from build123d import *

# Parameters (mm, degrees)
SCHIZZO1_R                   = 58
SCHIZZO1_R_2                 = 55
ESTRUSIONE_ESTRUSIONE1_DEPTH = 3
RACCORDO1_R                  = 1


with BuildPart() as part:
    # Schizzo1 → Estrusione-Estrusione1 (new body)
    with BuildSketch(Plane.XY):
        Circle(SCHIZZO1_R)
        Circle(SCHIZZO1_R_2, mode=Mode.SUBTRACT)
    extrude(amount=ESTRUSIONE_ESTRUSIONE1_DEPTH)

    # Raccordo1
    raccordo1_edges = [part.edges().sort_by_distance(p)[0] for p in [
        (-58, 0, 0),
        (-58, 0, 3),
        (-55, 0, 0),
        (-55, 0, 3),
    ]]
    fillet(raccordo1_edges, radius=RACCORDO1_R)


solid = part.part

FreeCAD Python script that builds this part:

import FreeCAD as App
import Part
import Sketcher

V = App.Vector
Q = App.Units.Quantity


def edges_at(feature, points):
    """Names of the edges that pass closest to the given points."""
    edges = feature.Shape.Edges
    near = lambda p: min(range(len(edges)), key=lambda i: edges[i].distToShape(Part.Vertex(*p))[0])
    return sorted({f"Edge{near(p) + 1}" for p in points})

doc = App.newDocument("Part")
body = doc.addObject("PartDesign::Body", "Body")

# Sketch on XY plane
sketch1 = doc.addObject("Sketcher::SketchObject", "Sketch")
body.addObject(sketch1)
sketch1.AttachmentSupport = (doc.XY_Plane, [""])
sketch1.MapMode = "FlatFace"
sketch1.addGeometry(Part.Circle(V(0, 0, 0), V(0, 0, 1), 58), False)
sketch1.addGeometry(Part.Circle(V(0, 0, 0), V(0, 0, 1), 55), False)
sketch1.addConstraint(Sketcher.Constraint("Coincident", 0, 3, -1, 1))
sketch1.addConstraint(Sketcher.Constraint("Coincident", 1, 3, -1, 1))
sketch1.addConstraint(Sketcher.Constraint("Diameter", 0, Q("116 mm")))
sketch1.addConstraint(Sketcher.Constraint("Diameter", 1, Q("110 mm")))
pad1 = doc.addObject("PartDesign::Pad", "Pad")
body.addObject(pad1)
pad1.Profile = sketch1
pad1.Length = 3
doc.recompute()

fillet = doc.addObject("PartDesign::Fillet", "Fillet")
body.addObject(fillet)
fillet.Base = (pad1, edges_at(pad1, [
    (-58, 0, 0),
    (-58, 0, 3),
    (-55, 0, 0),
    (-55, 0, 3),
]))
fillet.Radius = 1

doc.recompute()
